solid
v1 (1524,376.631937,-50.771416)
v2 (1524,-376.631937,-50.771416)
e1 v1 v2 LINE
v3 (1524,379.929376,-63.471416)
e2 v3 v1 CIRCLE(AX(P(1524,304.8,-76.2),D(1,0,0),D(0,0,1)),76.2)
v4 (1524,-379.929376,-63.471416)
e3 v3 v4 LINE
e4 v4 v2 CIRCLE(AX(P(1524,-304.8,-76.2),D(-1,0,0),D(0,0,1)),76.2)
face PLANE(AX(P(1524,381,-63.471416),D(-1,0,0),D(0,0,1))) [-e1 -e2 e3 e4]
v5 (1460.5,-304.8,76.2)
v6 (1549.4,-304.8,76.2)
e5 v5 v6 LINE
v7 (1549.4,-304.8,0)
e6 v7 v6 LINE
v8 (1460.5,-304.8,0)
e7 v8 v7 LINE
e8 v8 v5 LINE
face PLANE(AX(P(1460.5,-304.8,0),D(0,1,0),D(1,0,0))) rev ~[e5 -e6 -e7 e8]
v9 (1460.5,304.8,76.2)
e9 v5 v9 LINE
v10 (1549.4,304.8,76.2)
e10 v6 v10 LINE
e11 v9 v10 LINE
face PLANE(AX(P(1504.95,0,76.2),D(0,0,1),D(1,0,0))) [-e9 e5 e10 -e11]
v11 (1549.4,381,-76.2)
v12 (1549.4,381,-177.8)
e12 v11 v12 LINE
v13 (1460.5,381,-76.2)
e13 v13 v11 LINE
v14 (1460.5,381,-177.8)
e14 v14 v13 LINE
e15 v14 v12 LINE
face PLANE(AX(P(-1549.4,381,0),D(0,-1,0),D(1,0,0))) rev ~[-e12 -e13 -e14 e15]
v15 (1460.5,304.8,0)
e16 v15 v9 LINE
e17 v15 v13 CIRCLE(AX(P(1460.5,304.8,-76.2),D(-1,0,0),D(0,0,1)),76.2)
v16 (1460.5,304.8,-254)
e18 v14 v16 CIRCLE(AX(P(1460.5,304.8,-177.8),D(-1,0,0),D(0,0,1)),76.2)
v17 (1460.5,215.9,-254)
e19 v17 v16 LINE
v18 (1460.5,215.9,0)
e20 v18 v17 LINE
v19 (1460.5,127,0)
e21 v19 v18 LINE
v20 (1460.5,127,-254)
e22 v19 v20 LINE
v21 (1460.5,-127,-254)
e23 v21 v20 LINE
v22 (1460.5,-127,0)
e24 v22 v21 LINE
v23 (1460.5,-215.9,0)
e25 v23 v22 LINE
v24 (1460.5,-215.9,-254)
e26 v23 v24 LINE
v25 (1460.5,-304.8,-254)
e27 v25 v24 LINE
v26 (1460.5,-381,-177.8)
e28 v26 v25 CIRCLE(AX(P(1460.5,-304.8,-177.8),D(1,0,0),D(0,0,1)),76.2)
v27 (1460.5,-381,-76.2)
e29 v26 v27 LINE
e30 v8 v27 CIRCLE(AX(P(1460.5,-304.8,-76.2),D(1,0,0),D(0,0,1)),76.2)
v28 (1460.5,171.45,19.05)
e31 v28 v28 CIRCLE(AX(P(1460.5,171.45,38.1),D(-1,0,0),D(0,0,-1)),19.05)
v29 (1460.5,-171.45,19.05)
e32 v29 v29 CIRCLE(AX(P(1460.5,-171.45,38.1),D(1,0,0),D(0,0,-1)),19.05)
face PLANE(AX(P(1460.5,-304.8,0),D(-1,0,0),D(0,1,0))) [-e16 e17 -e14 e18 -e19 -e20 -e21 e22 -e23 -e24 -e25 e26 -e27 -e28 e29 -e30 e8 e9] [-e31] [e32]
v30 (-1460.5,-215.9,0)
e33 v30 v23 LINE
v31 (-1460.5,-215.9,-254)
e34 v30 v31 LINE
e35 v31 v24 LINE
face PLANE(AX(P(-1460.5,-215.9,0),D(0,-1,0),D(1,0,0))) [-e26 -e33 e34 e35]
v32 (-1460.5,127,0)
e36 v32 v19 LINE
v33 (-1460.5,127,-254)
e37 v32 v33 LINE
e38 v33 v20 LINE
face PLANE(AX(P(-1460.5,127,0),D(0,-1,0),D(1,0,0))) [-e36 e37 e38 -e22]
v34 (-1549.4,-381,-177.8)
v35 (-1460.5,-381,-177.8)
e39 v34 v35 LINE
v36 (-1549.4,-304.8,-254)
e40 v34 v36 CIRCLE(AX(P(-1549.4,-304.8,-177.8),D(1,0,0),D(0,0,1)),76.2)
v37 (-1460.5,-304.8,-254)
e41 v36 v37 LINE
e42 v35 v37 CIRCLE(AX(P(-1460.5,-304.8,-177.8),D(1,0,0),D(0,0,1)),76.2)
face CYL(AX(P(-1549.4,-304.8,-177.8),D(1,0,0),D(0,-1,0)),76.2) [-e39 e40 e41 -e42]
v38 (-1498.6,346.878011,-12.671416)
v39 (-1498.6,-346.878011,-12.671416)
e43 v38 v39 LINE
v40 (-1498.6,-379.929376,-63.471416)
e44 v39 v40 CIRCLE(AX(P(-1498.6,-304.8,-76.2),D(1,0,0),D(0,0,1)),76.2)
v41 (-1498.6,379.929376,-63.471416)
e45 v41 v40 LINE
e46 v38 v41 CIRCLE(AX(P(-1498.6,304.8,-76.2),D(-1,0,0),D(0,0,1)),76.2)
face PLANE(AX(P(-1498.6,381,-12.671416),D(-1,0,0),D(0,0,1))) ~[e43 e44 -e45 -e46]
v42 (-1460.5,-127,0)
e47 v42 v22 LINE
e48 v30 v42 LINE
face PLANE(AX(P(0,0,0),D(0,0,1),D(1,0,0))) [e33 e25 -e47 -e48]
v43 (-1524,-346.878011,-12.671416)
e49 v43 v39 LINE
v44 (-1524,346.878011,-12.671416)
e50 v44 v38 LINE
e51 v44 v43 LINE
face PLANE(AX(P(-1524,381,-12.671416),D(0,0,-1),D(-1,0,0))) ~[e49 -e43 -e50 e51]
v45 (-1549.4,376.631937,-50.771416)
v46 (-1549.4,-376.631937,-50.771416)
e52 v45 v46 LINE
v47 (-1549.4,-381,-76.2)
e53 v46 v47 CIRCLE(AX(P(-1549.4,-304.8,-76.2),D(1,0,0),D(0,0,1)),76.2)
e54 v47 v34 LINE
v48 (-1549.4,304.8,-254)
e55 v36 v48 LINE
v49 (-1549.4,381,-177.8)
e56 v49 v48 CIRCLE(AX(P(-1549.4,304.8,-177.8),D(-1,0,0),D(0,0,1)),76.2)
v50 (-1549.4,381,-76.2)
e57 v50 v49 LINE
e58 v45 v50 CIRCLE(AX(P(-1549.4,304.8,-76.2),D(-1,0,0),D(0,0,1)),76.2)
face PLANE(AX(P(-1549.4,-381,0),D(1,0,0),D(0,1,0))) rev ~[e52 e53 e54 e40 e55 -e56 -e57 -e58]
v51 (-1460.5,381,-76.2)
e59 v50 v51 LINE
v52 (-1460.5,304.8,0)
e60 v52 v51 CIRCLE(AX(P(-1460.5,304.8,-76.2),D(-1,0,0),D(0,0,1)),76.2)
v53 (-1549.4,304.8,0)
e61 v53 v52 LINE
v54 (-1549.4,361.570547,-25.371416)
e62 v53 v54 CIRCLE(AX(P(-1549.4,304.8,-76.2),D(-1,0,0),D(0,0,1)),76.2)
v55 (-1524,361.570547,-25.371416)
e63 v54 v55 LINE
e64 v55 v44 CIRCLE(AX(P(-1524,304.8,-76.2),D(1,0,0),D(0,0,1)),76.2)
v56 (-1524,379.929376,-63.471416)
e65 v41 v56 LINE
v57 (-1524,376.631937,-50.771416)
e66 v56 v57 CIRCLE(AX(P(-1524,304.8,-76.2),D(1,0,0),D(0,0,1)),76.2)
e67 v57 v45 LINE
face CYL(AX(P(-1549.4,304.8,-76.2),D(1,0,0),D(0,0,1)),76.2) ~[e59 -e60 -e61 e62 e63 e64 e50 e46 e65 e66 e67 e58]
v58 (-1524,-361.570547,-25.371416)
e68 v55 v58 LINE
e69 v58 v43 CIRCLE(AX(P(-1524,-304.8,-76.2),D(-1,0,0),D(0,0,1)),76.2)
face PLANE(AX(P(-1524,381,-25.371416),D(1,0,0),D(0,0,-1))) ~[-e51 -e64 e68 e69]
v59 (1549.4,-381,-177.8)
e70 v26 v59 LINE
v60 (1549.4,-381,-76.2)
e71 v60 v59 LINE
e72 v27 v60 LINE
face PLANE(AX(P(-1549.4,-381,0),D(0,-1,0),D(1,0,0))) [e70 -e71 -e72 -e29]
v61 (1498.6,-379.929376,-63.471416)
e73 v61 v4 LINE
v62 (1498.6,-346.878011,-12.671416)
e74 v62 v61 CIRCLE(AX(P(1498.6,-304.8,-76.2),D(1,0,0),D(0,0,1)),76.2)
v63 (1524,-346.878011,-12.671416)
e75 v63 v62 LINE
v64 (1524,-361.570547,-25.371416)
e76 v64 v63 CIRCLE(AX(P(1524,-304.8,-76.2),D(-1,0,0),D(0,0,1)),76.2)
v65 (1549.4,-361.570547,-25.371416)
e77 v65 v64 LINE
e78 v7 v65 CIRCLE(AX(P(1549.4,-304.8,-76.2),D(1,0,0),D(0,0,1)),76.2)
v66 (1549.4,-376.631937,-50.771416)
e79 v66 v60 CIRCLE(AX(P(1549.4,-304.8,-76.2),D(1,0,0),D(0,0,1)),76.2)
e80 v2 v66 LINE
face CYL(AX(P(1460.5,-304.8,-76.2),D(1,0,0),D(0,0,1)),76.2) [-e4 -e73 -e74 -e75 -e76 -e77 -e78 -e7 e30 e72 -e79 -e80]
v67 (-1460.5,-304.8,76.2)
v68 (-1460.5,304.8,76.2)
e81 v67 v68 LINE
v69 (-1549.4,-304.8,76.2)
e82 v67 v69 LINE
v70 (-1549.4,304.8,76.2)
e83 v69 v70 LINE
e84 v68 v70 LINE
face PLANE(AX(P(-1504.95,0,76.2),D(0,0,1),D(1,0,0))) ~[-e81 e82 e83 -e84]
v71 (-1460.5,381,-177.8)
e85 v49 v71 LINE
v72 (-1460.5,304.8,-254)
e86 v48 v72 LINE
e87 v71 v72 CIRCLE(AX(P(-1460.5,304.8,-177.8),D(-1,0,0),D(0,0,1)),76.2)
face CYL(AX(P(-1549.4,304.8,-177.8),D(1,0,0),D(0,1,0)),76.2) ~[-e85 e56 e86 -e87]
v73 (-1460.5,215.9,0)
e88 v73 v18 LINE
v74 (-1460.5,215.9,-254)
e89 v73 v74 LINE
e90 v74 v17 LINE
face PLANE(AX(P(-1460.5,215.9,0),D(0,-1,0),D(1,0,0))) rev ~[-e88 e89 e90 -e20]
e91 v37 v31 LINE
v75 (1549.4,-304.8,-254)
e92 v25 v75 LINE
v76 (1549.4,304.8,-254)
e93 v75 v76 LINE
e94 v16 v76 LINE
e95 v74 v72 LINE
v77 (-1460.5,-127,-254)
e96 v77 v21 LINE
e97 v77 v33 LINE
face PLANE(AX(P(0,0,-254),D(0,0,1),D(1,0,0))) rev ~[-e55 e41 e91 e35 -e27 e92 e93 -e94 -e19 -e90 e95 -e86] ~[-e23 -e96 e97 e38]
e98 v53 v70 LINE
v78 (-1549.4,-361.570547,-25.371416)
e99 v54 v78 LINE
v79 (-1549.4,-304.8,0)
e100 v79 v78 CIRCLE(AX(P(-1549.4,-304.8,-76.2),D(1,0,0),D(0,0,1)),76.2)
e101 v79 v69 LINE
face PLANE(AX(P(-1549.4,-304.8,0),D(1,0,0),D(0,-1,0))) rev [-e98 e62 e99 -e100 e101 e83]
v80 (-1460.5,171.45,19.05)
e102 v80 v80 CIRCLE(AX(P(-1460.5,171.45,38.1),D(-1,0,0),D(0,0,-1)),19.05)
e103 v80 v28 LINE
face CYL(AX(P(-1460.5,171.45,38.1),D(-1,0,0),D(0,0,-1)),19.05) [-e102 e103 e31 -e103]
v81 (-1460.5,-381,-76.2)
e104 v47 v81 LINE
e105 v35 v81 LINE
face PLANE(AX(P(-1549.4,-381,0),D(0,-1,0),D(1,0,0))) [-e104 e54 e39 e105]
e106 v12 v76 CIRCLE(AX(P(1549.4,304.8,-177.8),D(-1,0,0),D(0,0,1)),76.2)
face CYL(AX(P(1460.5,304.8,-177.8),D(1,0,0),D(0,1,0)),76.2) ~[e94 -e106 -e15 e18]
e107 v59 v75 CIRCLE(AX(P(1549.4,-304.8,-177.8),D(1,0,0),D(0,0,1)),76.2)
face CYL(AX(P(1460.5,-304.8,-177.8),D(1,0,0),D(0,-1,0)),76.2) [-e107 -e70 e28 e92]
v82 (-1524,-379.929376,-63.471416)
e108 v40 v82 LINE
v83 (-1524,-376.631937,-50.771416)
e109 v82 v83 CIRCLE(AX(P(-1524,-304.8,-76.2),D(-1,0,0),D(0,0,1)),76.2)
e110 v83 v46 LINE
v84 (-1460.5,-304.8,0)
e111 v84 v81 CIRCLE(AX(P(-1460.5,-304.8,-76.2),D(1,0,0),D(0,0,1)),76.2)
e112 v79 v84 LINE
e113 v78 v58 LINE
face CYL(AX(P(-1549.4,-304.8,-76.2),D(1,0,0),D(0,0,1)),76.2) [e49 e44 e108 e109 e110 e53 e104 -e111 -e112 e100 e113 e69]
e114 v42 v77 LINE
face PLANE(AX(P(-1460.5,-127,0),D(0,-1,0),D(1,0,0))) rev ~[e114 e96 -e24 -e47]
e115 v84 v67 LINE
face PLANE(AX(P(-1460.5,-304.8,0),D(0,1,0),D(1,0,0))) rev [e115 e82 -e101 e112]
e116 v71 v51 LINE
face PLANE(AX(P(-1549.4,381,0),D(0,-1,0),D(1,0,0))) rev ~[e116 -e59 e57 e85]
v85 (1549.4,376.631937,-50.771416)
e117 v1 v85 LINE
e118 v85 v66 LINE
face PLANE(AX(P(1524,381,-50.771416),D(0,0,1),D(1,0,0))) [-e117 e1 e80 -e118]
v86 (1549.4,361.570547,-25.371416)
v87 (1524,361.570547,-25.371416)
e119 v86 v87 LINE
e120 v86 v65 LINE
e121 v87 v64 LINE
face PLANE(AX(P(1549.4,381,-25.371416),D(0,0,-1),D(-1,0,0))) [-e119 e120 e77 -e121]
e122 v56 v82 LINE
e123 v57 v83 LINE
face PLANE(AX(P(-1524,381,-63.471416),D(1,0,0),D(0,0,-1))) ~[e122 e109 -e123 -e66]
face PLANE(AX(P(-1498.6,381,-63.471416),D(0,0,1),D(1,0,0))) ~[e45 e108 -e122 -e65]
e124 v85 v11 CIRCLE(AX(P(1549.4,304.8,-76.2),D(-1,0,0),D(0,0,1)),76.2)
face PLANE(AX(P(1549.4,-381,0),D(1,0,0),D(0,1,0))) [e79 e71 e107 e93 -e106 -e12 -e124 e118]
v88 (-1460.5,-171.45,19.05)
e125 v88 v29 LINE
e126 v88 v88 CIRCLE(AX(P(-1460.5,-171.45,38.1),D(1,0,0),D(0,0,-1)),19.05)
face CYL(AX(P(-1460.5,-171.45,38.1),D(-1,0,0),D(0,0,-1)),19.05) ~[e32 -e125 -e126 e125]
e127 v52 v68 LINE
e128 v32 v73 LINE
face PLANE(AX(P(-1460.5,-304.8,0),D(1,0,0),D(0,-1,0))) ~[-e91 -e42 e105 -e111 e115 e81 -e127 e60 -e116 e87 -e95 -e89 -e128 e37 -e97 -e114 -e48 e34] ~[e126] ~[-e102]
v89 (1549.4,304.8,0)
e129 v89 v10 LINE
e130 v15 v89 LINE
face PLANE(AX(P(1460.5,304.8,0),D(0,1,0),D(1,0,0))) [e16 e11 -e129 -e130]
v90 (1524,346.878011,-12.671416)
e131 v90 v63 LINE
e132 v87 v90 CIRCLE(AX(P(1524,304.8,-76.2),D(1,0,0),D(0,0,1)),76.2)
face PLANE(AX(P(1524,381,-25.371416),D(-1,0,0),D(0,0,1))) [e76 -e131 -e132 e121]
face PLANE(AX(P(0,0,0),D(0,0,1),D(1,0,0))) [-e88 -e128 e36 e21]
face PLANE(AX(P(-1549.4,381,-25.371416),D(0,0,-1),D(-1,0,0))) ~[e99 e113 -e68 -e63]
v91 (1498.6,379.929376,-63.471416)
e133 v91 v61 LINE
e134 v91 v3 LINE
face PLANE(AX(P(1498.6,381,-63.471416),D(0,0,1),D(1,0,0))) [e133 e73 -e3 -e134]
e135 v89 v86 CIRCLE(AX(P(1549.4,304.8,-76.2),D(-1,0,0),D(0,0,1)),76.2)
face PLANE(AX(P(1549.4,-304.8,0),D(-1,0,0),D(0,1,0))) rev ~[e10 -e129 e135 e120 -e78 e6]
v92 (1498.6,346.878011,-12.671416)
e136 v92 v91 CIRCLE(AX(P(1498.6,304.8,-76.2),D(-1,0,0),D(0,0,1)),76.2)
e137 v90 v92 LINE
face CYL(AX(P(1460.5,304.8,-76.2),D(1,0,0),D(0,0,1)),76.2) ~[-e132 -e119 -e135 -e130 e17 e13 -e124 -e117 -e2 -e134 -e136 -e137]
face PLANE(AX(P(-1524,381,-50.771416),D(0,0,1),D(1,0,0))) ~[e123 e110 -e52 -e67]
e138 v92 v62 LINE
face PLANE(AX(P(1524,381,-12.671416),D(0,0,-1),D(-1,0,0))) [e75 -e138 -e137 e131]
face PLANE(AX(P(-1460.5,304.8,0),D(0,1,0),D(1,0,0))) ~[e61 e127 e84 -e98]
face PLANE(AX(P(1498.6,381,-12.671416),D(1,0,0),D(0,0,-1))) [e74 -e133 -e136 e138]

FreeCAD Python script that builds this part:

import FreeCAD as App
import Part
import Sketcher
from FreeCAD import Vector
Q = App.Units.Quantity


def edges_at(feature, points):
    """Names of the edges that pass closest to the given points."""
    edges = feature.Shape.Edges
    near = lambda p: min(range(len(edges)), key=lambda i: edges[i].distToShape(Part.Vertex(*p))[0])
    return sorted({f"Edge{near(p) + 1}" for p in points})


def add_polygon(sketch, points):
    """Adds a closed chain of lines whose ends are joined by coincident constraints."""
    first, n = sketch.GeometryCount, len(points)
    for a, b in zip(points, points[1:] + points[:1]):
        sketch.addGeometry(Part.LineSegment(App.Vector(*a, 0), App.Vector(*b, 0)), False)
    for i in range(n):
        sketch.addConstraint(Sketcher.Constraint("Coincident", first + i, 2, first + (i + 1) % n, 1))

doc = App.newDocument("Part")
body = doc.addObject("PartDesign::Body", "Body")

# Sketch on XY plane
sketch1 = body.newObject("Sketcher::SketchObject", "Sketch")
sketch1.AttachmentSupport = (doc.getObject("XY_Plane"), [""])
sketch1.MapMode = "FlatFace"
add_polygon(sketch1, [(-1549.4, 381), (-1549.4, -381), (1549.4, -381), (1549.4, 381)])  # lines 0-3
sketch1.addConstraint([
    Sketcher.Constraint("Vertical", 0),
    Sketcher.Constraint("Horizontal", 1),
    Sketcher.Constraint("Vertical", 2),
    Sketcher.Constraint("Horizontal", 3),
    Sketcher.Constraint("Symmetric", 0, 2, 2, 2, -1, 1),
    Sketcher.Constraint("DistanceX", 1, 1, 1, 2, Q("122 in")),
    Sketcher.Constraint("DistanceY", 0, 2, 0, 1, Q("30 in")),
])
pad1 = body.newObject("PartDesign::Pad", "Pad")
pad1.Profile = sketch1
pad1.Length = Q("10 in")
pad1.Reversed = True

# Sketch on XY plane
sketch2 = body.newObject("Sketcher::SketchObject", "Sketch001")
sketch2.AttachmentSupport = (doc.getObject("XY_Plane"), [""])
sketch2.MapMode = "FlatFace"
add_polygon(sketch2, [(-1460.5, 127), (-1460.5, -127), (1460.5, -127), (1460.5, 127)])  # lines 0-3
sketch2.addConstraint([
    Sketcher.Constraint("Vertical", 0),
    Sketcher.Constraint("Horizontal", 1),
    Sketcher.Constraint("Vertical", 2),
    Sketcher.Constraint("Horizontal", 3),
    Sketcher.Constraint("Symmetric", 0, 2, 2, 2, -1, 1),
    Sketcher.Constraint("DistanceX", 1, 1, 1, 2, Q("115 in")),
    Sketcher.Constraint("DistanceY", 0, 2, 0, 1, Q("10 in")),
])
pocket1 = body.newObject("PartDesign::Pocket", "Pocket")
pocket1.Profile = sketch2
pocket1.Type = "ThroughAll"

# Sketch on XY plane
sketch3 = body.newObject("Sketcher::SketchObject", "Sketch002")
sketch3.AttachmentSupport = (doc.getObject("XY_Plane"), [""])
sketch3.MapMode = "FlatFace"
add_polygon(sketch3, [(-1460.5, 439.968342), (-1460.5, 215.9), (1460.5, 215.9), (1460.5, 439.968342)])  # lines 0-3
add_polygon(sketch3, [(-1460.5, -215.9), (-1460.5, -425.370733), (1460.5, -425.370733), (1460.5, -215.9)])  # lines 4-7
sketch3.addConstraint([
    Sketcher.Constraint("Vertical", 0),
    Sketcher.Constraint("Horizontal", 1),
    Sketcher.Constraint("Vertical", 2),
    Sketcher.Constraint("Horizontal", 3),
    Sketcher.Constraint("Vertical", 4),
    Sketcher.Constraint("Horizontal", 5),
    Sketcher.Constraint("Vertical", 6),
    Sketcher.Constraint("Horizontal", 7),
    Sketcher.Constraint("Symmetric", 0, 2, 6, 2, -1, 1),
    Sketcher.Constraint("Vertical", 3, 2, 4, 2),
    Sketcher.Constraint("Vertical", 2, 2, 5, 2),
    Sketcher.Constraint("DistanceX", 1, 1, 1, 2, Q("115 in")),
    Sketcher.Constraint("DistanceY", 6, 2, 1, 2, Q("17 in")),
    Sketcher.Constraint("DistanceY", 0, 2, 0, 1, 224.068342),
    Sketcher.Constraint("DistanceY", 4, 2, 4, 1, 209.470733),
])
pocket2 = body.newObject("PartDesign::Pocket", "Pocket001")
pocket2.Profile = sketch3
pocket2.Type = "ThroughAll"

# Sketch on XZ plane
sketch4 = body.newObject("Sketcher::SketchObject", "Sketch003")
sketch4.AttachmentSupport = (doc.getObject("XZ_Plane"), [""])
sketch4.MapMode = "FlatFace"
sketch4.AttachmentOffset = App.Placement(Vector(0, 0, -15 * 25.4), App.Rotation())
add_polygon(sketch4, [(1524, -12.671416), (1498.6, -12.671416), (1498.6, -63.471416), (1524, -63.471416), (1524, -50.771416), (1549.4, -50.771416), (1549.4, -25.371416), (1524, -25.371416)])  # lines 0-7
sketch4.addConstraint([
    Sketcher.Constraint("Horizontal", 0),
    Sketcher.Constraint("Vertical", 1),
    Sketcher.Constraint("Horizontal", 2),
    Sketcher.Constraint("Vertical", 3),
    Sketcher.Constraint("Horizontal", 4),
    Sketcher.Constraint("Vertical", 5),
    Sketcher.Constraint("Horizontal", 6),
    Sketcher.Constraint("Vertical", 7),
    Sketcher.Constraint("Vertical", 3, 2, 6, 2),
    Sketcher.Constraint("Equal", 2, 4),
    Sketcher.Constraint("Equal", 6, 5),
    Sketcher.Constraint("Equal", 3, 7),
    Sketcher.Constraint("DistanceX", 0, 2, 0, 1, Q("1 in")),
    Sketcher.Constraint("DistanceY", 1, 2, 1, 1, Q("2 in")),
    Sketcher.Constraint("DistanceX", -1, 1, 0, 2, Q("59 in")),
    Sketcher.Constraint("DistanceY", 0, 2, -1, 1, 12.671416),
])
pocket3 = body.newObject("PartDesign::Pocket", "Pocket002")
pocket3.Profile = sketch4
pocket3.Length = 763
pocket3.Reversed = True
doc.recompute()

mirrored = body.newObject("PartDesign::Mirrored", "Mirrored")
mirrored.Originals = [pocket3]
mirrored.MirrorPlane = (doc.getObject("YZ_Plane"), [""])
body.Tip = mirrored
doc.recompute()

fillet = body.newObject("PartDesign::Fillet", "Fillet")
fillet.Base = (mirrored, edges_at(mirrored, [
    (-1504.95, -381, 0),
    (-1504.95, -381, -254),
    (-1504.95, 381, 0),
    (-1504.95, 381, -254),
    (1504.95, 381, 0),
    (1504.95, 381, -254),
    (1504.95, -381, -254),
    (1504.95, -381, 0),
]))
fillet.Radius = Q("3 in")

# Sketch on XY plane
sketch5 = body.newObject("Sketcher::SketchObject", "Sketch004")
sketch5.AttachmentSupport = (doc.getObject("XY_Plane"), [""])
sketch5.MapMode = "FlatFace"
add_polygon(sketch5, [(1460.5, 304.8), (1460.5, -304.8), (1549.4, -304.8), (1549.4, 304.8)])  # lines 0-3
sketch5.addConstraint([
    Sketcher.Constraint("Vertical", 0),
    Sketcher.Constraint("Horizontal", 1),
    Sketcher.Constraint("Vertical", 2),
    Sketcher.Constraint("Horizontal", 3),
    Sketcher.Constraint("DistanceY", 0, 2, 0, 1, Q("24 in")),
    Sketcher.Constraint("DistanceX", 1, 1, 1, 2, Q("3.5 in")),
    Sketcher.Constraint("DistanceY", 0, 2, -1, 1, Q("12 in")),
    Sketcher.Constraint("DistanceX", -1, 1, 1, 2, Q("61 in")),
])
pad2 = body.newObject("PartDesign::Pad", "Pad001")
pad2.Profile = sketch5
pad2.Length = Q("3 in")
doc.recompute()

mirrored2 = body.newObject("PartDesign::Mirrored", "Mirrored001")
mirrored2.Originals = [pad2]
mirrored2.MirrorPlane = (doc.getObject("YZ_Plane"), [""])
body.Tip = mirrored2

# Sketch on YZ plane
sketch6 = body.newObject("Sketcher::SketchObject", "Sketch005")
sketch6.AttachmentSupport = (doc.getObject("YZ_Plane"), [""])
sketch6.MapMode = "FlatFace"
sketch6.AttachmentOffset = App.Placement(Vector(0, 0, -57.5 * 25.4), App.Rotation())
sketch6.addGeometry(Part.Circle(Vector(-171.45, 38.1, 0), Vector(0, 0, 1), 19.05), False)
sketch6.addConstraint([
    Sketcher.Constraint("Diameter", 0, Q("1.5 in")),
    Sketcher.Constraint("DistanceY", -1, 1, 0, 3, Q("1.5 in")),
    Sketcher.Constraint("DistanceX", 0, 3, -1, 1, Q("6.75 in")),
])
pad3 = body.newObject("PartDesign::Pad", "Pad002")
pad3.Profile = sketch6
pad3.Length = Q("115 in")
doc.recompute()

mirrored3 = body.newObject("PartDesign::Mirrored", "Mirrored002")
mirrored3.Originals = [pad3]
mirrored3.MirrorPlane = (doc.getObject("XZ_Plane"), [""])
body.Tip = mirrored3

doc.recompute()
